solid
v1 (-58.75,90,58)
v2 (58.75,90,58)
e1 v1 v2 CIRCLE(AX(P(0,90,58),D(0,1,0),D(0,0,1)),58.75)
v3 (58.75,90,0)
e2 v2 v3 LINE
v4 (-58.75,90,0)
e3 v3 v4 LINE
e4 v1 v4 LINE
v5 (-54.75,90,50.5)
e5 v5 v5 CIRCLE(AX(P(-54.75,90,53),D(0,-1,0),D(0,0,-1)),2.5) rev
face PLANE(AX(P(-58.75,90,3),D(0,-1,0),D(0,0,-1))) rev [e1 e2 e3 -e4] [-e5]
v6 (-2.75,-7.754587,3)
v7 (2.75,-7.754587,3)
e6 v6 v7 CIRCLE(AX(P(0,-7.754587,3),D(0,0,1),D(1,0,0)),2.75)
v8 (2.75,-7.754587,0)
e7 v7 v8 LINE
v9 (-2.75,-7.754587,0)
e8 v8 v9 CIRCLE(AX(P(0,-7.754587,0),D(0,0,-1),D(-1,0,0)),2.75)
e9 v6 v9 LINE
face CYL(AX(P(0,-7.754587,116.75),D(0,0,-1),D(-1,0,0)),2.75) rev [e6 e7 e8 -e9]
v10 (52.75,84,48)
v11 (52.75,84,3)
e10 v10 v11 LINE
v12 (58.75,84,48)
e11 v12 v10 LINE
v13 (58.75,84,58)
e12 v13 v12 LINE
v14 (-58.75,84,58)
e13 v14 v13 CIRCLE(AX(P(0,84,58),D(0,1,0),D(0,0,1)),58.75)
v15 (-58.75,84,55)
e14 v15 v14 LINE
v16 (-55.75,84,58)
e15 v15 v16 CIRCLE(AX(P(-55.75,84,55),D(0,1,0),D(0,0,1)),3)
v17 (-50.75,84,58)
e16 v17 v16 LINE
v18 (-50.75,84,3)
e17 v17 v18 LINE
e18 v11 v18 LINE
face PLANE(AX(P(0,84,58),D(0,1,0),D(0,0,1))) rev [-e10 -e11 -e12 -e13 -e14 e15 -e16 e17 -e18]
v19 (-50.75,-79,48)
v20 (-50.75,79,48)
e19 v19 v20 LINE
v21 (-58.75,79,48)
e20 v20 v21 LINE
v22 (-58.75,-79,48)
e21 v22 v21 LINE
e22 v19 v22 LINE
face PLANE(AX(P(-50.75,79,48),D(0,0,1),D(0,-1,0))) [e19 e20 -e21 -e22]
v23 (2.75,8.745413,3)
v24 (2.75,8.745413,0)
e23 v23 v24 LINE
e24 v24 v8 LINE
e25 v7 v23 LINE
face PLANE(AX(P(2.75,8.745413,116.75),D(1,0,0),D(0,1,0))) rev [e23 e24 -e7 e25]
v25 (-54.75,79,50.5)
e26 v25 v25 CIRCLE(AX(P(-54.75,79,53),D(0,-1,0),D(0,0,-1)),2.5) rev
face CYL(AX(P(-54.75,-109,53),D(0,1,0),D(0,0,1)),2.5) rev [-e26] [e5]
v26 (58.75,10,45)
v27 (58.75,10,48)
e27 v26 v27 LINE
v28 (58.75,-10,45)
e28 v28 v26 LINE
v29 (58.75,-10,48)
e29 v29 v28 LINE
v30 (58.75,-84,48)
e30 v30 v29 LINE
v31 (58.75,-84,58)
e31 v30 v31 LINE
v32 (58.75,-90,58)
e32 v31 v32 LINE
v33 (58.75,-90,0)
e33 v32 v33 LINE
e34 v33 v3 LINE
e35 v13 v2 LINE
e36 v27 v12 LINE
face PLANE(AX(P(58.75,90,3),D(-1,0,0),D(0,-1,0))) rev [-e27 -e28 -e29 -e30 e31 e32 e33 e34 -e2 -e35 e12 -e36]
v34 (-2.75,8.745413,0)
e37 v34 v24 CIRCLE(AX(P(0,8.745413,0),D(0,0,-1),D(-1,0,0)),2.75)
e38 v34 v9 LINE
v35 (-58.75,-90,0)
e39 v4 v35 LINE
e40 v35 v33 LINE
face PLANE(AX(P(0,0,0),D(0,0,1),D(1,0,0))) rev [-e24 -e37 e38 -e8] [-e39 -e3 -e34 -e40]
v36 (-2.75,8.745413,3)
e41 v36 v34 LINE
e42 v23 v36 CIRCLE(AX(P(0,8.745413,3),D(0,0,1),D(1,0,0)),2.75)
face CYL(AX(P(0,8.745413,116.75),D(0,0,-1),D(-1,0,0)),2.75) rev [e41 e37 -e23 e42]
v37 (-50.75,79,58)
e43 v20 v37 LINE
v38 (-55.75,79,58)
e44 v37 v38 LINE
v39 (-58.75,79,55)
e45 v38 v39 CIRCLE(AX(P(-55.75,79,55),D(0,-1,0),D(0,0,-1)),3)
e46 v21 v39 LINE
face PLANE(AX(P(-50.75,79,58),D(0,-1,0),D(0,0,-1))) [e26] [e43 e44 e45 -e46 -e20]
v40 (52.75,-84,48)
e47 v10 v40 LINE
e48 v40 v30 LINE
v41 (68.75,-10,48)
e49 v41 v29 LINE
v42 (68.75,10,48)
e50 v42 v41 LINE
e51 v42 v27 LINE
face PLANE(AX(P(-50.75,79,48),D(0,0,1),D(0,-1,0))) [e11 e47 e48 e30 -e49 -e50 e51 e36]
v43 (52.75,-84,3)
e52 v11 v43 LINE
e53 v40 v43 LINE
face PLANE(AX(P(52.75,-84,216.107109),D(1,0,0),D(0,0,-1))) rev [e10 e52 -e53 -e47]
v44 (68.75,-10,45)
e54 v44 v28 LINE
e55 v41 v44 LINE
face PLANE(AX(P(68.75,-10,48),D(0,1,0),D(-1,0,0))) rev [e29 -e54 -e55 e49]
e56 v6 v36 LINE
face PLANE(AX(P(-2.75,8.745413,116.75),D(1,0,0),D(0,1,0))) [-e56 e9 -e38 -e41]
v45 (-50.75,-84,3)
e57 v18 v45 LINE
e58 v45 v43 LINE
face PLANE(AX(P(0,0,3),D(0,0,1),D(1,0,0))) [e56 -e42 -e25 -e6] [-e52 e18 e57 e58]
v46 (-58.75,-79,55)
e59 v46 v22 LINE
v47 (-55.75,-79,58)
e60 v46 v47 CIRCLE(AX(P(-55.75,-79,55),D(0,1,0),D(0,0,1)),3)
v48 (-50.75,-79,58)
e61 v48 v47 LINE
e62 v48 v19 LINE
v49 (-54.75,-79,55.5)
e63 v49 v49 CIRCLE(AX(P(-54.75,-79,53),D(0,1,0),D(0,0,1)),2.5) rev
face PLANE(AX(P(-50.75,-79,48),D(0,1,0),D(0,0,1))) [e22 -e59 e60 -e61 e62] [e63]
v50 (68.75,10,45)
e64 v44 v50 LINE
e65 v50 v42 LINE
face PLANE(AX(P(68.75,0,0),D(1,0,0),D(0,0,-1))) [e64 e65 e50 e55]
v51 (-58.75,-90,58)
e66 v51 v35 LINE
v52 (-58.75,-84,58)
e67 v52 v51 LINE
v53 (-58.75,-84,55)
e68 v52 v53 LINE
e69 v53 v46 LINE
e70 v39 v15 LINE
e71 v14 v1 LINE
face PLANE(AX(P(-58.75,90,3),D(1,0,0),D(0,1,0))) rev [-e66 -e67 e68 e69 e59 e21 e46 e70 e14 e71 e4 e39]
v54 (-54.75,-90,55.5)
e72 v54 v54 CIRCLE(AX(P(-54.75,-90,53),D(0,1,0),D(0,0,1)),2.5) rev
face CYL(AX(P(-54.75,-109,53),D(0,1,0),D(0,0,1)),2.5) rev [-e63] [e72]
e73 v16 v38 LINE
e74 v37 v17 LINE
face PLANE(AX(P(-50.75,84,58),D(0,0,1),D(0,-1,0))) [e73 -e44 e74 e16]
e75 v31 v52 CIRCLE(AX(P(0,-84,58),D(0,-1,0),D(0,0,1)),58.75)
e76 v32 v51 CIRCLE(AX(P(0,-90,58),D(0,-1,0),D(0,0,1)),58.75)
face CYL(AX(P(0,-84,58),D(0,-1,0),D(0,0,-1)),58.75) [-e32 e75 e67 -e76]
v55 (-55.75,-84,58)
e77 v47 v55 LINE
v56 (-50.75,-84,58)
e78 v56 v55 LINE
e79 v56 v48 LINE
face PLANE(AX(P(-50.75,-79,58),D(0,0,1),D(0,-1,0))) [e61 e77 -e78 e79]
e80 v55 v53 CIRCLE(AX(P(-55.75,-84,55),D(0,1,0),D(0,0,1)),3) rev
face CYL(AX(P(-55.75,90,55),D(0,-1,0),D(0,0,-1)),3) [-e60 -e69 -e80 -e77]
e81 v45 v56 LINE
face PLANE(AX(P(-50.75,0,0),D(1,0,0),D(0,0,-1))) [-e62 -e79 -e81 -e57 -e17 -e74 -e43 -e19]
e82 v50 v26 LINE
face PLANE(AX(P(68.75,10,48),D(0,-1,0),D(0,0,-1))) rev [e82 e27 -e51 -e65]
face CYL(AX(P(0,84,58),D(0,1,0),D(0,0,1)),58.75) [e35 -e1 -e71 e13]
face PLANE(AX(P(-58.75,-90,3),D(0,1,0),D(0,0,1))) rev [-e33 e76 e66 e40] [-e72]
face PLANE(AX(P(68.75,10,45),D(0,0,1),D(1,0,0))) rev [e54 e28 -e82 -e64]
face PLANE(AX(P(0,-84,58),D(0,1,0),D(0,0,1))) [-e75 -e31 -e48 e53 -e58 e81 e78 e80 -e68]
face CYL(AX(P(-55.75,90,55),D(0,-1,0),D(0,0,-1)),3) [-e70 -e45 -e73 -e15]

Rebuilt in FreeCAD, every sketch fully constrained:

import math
import FreeCAD as App
import Part
import Sketcher

V = App.Vector
Q = App.Units.Quantity


def edges_at(feature, points):
    """Names of the edges that pass closest to the given points."""
    edges = feature.Shape.Edges
    near = lambda p: min(range(len(edges)), key=lambda i: edges[i].distToShape(Part.Vertex(*p))[0])
    return sorted({f"Edge{near(p) + 1}" for p in points})


def add_polygon(sketch, points):
    """Adds a closed chain of lines whose ends are joined by coincident constraints."""
    first, n = sketch.GeometryCount, len(points)
    for a, b in zip(points, points[1:] + points[:1]):
        sketch.addGeometry(Part.LineSegment(App.Vector(*a, 0), App.Vector(*b, 0)), False)
    for i in range(n):
        sketch.addConstraint(Sketcher.Constraint("Coincident", first + i, 2, first + (i + 1) % n, 1))

doc = App.newDocument("Part")
body = doc.addObject("PartDesign::Body", "Body")

sketch1 = body.newObject("Sketcher::SketchObject", "Sketch")
sketch1.AttachmentSupport = (doc.getObject("XY_Plane"), [""])
sketch1.MapMode = "FlatFace"
add_polygon(sketch1, [(-59, 90), (-59, -90), (59, -90), (59, 90)])
sketch1.addConstraint([
    Sketcher.Constraint("Vertical", 0),
    Sketcher.Constraint("Horizontal", 1),
    Sketcher.Constraint("Vertical", 2),
    Sketcher.Constraint("Horizontal", 3),
    Sketcher.Constraint("Symmetric", 0, 2, 2, 2, -1, 1),
    Sketcher.Constraint("DistanceY", 0, 2, 0, 1, Q("180 mm")),
    Sketcher.Constraint("DistanceX", 1, 1, 1, 2, Q("117.5 mm")),
])
pad1 = body.newObject("PartDesign::Pad", "Pad")
pad1.Profile = sketch1
pad1.Length = 3

sketch2 = body.newObject("Sketcher::SketchObject", "Sketch001")
sketch2.AttachmentSupport = (doc.getObject("XZ_Plane"), [""])
sketch2.MapMode = "FlatFace"
sketch2.AttachmentOffset = App.Placement(V(0, 0, 90), App.Rotation())
sketch2.addGeometry([
    Part.LineSegment(V(-59, 58, 0), V(-59, 3, 0)),
    Part.LineSegment(V(-59, 3, 0), V(59, 3, 0)),
    Part.LineSegment(V(59, 3, 0), V(59, 58, 0)),
    Part.ArcOfCircle(Part.Circle(V(0, 58, 0), V(0, 0, 1), 59), math.radians(0), math.radians(180)),
], False)
sketch2.addConstraint([
    Sketcher.Constraint("Coincident", 0, 2, 1, 1),
    Sketcher.Constraint("Coincident", 1, 2, 2, 1),
    Sketcher.Constraint("Tangent", 2, 2, 3, 1),
    Sketcher.Constraint("Tangent", 3, 2, 0, 1),
    Sketcher.Constraint("Vertical", 0),
    Sketcher.Constraint("Horizontal", 1),
    Sketcher.Constraint("Vertical", 2),
    Sketcher.Constraint("PointOnObject", 3, 3, -2),
    Sketcher.Constraint("DistanceY", 0, 2, 0, 1, Q("55 mm")),
    Sketcher.Constraint("Radius", 3, Q("58.75 mm")),
    Sketcher.Constraint("DistanceY", -1, 1, 3, 3, Q("58 mm")),
])
pad2 = body.newObject("PartDesign::Pad", "Pad001")
pad2.Profile = sketch2
pad2.Length = 6
pad2.Reversed = True

sketch3 = body.newObject("Sketcher::SketchObject", "Sketch002")
sketch3.AttachmentSupport = (doc.getObject("XZ_Plane"), [""])
sketch3.MapMode = "FlatFace"
sketch3.AttachmentOffset = App.Placement(V(0, 0, -84), App.Rotation())
sketch3.addGeometry([
    Part.LineSegment(V(-59, 3, 0), V(-59, 58, 0)),
    Part.ArcOfCircle(Part.Circle(V(0, 58, 0), V(0, 0, 1), 59), math.radians(0), math.radians(180)),
    Part.LineSegment(V(59, 58, 0), V(59, 3, 0)),
    Part.LineSegment(V(59, 3, 0), V(-59, 3, 0)),
], False)
sketch3.addConstraint([
    Sketcher.Constraint("Tangent", 0, 2, 1, 2),
    Sketcher.Constraint("Tangent", 1, 1, 2, 1),
    Sketcher.Constraint("Coincident", 2, 2, 3, 1),
    Sketcher.Constraint("Coincident", 3, 2, 0, 1),
    Sketcher.Constraint("Vertical", 0),
    Sketcher.Constraint("Vertical", 2),
    Sketcher.Constraint("Horizontal", 3),
    Sketcher.Constraint("PointOnObject", 1, 3, -2),
    Sketcher.Constraint("DistanceY", 0, 1, 0, 2, Q("55 mm")),
    Sketcher.Constraint("Radius", 1, Q("58.75 mm")),
    Sketcher.Constraint("DistanceY", -1, 1, 1, 3, Q("58 mm")),
])
pad3 = body.newObject("PartDesign::Pad", "Pad002")
pad3.Profile = sketch3
pad3.Length = 6
pad3.Reversed = True

sketch4 = body.newObject("Sketcher::SketchObject", "Sketch003")
sketch4.AttachmentSupport = (doc.getObject("YZ_Plane"), [""])
sketch4.MapMode = "FlatFace"
sketch4.AttachmentOffset = App.Placement(V(0, 0, -58.75), App.Rotation())
add_polygon(sketch4, [(84, 58), (84, 3), (-84, 3), (-84, 58), (-79, 58), (-79, 48), (79, 48), (79, 58)])
sketch4.addConstraint([
    Sketcher.Constraint("Vertical", 0),
    Sketcher.Constraint("Horizontal", 1),
    Sketcher.Constraint("Vertical", 2),
    Sketcher.Constraint("Horizontal", 3),
    Sketcher.Constraint("Vertical", 4),
    Sketcher.Constraint("Horizontal", 5),
    Sketcher.Constraint("Vertical", 6),
    Sketcher.Constraint("Horizontal", 7),
    Sketcher.Constraint("Symmetric", 3, 2, 6, 2, -2),
    Sketcher.Constraint("Equal", 3, 7),
    Sketcher.Constraint("DistanceX", 1, 2, 1, 1, Q("168 mm")),
    Sketcher.Constraint("DistanceX", 3, 1, 3, 2, Q("5 mm")),
    Sketcher.Constraint("DistanceY", 0, 2, 0, 1, Q("55 mm")),
    Sketcher.Constraint("DistanceY", 4, 2, 4, 1, Q("10 mm")),
    Sketcher.Constraint("DistanceY", -1, 1, 0, 2, Q("3 mm")),
])
pad4 = body.newObject("PartDesign::Pad", "Pad003")
pad4.Profile = sketch4
pad4.Length = 8

sketch5 = body.newObject("Sketcher::SketchObject", "Sketch004")
sketch5.AttachmentSupport = (doc.getObject("XZ_Plane"), [""])
sketch5.MapMode = "FlatFace"
sketch5.AttachmentOffset = App.Placement(V(0, 0, -79), App.Rotation())
sketch5.addGeometry(Part.Circle(V(-54.8, 53, 0), V(0, 0, 1), 2.5), False)
sketch5.addConstraint([
    Sketcher.Constraint("Diameter", 0, Q("5 mm")),
    Sketcher.Constraint("DistanceY", -1, 1, 0, 3, Q("53 mm")),
    Sketcher.Constraint("DistanceX", 0, 3, -1, 1, Q("54.75 mm")),
])
pocket1 = body.newObject("PartDesign::Pocket", "Pocket")
pocket1.Profile = sketch5
pocket1.Type = "ThroughAll"
pocket1.Midplane = True
doc.recompute()

fillet = body.newObject("PartDesign::Fillet", "Fillet")
fillet.Base = (pocket1, edges_at(pocket1, [(-58.75, -81.5, 58), (-58.75, 81.5, 58)]))
fillet.Radius = 3

sketch6 = body.newObject("Sketcher::SketchObject", "Sketch005")
sketch6.AttachmentSupport = (doc.getObject("XY_Plane"), [""])
sketch6.MapMode = "FlatFace"
sketch6.AttachmentOffset = App.Placement(V(0, 0, 3), App.Rotation())
add_polygon(sketch6, [(53, 84), (53, -84), (59, -84), (59, 84)])
sketch6.addConstraint([
    Sketcher.Constraint("Vertical", 0),
    Sketcher.Constraint("Horizontal", 1),
    Sketcher.Constraint("Vertical", 2),
    Sketcher.Constraint("Horizontal", 3),
    Sketcher.Constraint("DistanceX", 1, 1, 1, 2, Q("6 mm")),
    Sketcher.Constraint("DistanceY", 0, 2, 0, 1, Q("168 mm")),
    Sketcher.Constraint("DistanceY", 0, 2, -1, 1, Q("84 mm")),
    Sketcher.Constraint("DistanceX", -1, 1, 0, 2, Q("52.75 mm")),
])
pad5 = body.newObject("PartDesign::Pad", "Pad004")
pad5.Profile = sketch6
pad5.Length = 45

sketch7 = body.newObject("Sketcher::SketchObject", "Sketch006")
sketch7.AttachmentSupport = (doc.getObject("XY_Plane"), [""])
sketch7.MapMode = "FlatFace"
sketch7.addGeometry([
    Part.LineSegment(V(-2.8, -7.8, 0), V(-2.8, 8.7, 0)),
    Part.ArcOfCircle(Part.Circle(V(0, 8.7, 0), V(0, 0, 1), 2.8), math.radians(0), math.radians(180)),
    Part.LineSegment(V(2.8, 8.7, 0), V(2.8, -7.8, 0)),
    Part.ArcOfCircle(Part.Circle(V(0, -7.8, 0), V(0, 0, 1), 2.8), math.radians(180), math.radians(360)),
], False)
sketch7.addConstraint([
    Sketcher.Constraint("Tangent", 0, 2, 1, 2),
    Sketcher.Constraint("Tangent", 1, 1, 2, 1),
    Sketcher.Constraint("Tangent", 2, 2, 3, 2),
    Sketcher.Constraint("Tangent", 3, 1, 0, 1),
    Sketcher.Constraint("Vertical", 0),
    Sketcher.Constraint("Vertical", 2),
    Sketcher.Constraint("PointOnObject", 1, 3, -2),
    Sketcher.Constraint("Radius", 1, Q("2.75 mm")),
    Sketcher.Constraint("DistanceY", 0, 1, 0, 2, Q("16.5 mm")),
    Sketcher.Constraint("DistanceY", -1, 1, 1, 3, Q("8.745413 mm")),
])
pocket2 = body.newObject("PartDesign::Pocket", "Pocket001")
pocket2.Profile = sketch7
pocket2.Type = "ThroughAll"
pocket2.Reversed = True

sketch8 = body.newObject("Sketcher::SketchObject", "Sketch007")
sketch8.AttachmentSupport = (doc.getObject("YZ_Plane"), [""])
sketch8.MapMode = "FlatFace"
sketch8.AttachmentOffset = App.Placement(V(0, 0, 58.75), App.Rotation())
add_polygon(sketch8, [(10, 48), (-10, 48), (-10, 45), (10, 45)])
sketch8.addConstraint([
    Sketcher.Constraint("Horizontal", 0),
    Sketcher.Constraint("Vertical", 1),
    Sketcher.Constraint("Horizontal", 2),
    Sketcher.Constraint("Vertical", 3),
    Sketcher.Constraint("DistanceX", 0, 2, 0, 1, Q("20 mm")),
    Sketcher.Constraint("DistanceY", 1, 2, 1, 1, Q("3 mm")),
    Sketcher.Constraint("DistanceX", 0, 2, -1, 1, Q("10 mm")),
    Sketcher.Constraint("DistanceY", -1, 1, 0, 2, Q("48 mm")),
])
pad6 = body.newObject("PartDesign::Pad", "Pad005")
pad6.Profile = sketch8
pad6.Length = 10

doc.recompute()
